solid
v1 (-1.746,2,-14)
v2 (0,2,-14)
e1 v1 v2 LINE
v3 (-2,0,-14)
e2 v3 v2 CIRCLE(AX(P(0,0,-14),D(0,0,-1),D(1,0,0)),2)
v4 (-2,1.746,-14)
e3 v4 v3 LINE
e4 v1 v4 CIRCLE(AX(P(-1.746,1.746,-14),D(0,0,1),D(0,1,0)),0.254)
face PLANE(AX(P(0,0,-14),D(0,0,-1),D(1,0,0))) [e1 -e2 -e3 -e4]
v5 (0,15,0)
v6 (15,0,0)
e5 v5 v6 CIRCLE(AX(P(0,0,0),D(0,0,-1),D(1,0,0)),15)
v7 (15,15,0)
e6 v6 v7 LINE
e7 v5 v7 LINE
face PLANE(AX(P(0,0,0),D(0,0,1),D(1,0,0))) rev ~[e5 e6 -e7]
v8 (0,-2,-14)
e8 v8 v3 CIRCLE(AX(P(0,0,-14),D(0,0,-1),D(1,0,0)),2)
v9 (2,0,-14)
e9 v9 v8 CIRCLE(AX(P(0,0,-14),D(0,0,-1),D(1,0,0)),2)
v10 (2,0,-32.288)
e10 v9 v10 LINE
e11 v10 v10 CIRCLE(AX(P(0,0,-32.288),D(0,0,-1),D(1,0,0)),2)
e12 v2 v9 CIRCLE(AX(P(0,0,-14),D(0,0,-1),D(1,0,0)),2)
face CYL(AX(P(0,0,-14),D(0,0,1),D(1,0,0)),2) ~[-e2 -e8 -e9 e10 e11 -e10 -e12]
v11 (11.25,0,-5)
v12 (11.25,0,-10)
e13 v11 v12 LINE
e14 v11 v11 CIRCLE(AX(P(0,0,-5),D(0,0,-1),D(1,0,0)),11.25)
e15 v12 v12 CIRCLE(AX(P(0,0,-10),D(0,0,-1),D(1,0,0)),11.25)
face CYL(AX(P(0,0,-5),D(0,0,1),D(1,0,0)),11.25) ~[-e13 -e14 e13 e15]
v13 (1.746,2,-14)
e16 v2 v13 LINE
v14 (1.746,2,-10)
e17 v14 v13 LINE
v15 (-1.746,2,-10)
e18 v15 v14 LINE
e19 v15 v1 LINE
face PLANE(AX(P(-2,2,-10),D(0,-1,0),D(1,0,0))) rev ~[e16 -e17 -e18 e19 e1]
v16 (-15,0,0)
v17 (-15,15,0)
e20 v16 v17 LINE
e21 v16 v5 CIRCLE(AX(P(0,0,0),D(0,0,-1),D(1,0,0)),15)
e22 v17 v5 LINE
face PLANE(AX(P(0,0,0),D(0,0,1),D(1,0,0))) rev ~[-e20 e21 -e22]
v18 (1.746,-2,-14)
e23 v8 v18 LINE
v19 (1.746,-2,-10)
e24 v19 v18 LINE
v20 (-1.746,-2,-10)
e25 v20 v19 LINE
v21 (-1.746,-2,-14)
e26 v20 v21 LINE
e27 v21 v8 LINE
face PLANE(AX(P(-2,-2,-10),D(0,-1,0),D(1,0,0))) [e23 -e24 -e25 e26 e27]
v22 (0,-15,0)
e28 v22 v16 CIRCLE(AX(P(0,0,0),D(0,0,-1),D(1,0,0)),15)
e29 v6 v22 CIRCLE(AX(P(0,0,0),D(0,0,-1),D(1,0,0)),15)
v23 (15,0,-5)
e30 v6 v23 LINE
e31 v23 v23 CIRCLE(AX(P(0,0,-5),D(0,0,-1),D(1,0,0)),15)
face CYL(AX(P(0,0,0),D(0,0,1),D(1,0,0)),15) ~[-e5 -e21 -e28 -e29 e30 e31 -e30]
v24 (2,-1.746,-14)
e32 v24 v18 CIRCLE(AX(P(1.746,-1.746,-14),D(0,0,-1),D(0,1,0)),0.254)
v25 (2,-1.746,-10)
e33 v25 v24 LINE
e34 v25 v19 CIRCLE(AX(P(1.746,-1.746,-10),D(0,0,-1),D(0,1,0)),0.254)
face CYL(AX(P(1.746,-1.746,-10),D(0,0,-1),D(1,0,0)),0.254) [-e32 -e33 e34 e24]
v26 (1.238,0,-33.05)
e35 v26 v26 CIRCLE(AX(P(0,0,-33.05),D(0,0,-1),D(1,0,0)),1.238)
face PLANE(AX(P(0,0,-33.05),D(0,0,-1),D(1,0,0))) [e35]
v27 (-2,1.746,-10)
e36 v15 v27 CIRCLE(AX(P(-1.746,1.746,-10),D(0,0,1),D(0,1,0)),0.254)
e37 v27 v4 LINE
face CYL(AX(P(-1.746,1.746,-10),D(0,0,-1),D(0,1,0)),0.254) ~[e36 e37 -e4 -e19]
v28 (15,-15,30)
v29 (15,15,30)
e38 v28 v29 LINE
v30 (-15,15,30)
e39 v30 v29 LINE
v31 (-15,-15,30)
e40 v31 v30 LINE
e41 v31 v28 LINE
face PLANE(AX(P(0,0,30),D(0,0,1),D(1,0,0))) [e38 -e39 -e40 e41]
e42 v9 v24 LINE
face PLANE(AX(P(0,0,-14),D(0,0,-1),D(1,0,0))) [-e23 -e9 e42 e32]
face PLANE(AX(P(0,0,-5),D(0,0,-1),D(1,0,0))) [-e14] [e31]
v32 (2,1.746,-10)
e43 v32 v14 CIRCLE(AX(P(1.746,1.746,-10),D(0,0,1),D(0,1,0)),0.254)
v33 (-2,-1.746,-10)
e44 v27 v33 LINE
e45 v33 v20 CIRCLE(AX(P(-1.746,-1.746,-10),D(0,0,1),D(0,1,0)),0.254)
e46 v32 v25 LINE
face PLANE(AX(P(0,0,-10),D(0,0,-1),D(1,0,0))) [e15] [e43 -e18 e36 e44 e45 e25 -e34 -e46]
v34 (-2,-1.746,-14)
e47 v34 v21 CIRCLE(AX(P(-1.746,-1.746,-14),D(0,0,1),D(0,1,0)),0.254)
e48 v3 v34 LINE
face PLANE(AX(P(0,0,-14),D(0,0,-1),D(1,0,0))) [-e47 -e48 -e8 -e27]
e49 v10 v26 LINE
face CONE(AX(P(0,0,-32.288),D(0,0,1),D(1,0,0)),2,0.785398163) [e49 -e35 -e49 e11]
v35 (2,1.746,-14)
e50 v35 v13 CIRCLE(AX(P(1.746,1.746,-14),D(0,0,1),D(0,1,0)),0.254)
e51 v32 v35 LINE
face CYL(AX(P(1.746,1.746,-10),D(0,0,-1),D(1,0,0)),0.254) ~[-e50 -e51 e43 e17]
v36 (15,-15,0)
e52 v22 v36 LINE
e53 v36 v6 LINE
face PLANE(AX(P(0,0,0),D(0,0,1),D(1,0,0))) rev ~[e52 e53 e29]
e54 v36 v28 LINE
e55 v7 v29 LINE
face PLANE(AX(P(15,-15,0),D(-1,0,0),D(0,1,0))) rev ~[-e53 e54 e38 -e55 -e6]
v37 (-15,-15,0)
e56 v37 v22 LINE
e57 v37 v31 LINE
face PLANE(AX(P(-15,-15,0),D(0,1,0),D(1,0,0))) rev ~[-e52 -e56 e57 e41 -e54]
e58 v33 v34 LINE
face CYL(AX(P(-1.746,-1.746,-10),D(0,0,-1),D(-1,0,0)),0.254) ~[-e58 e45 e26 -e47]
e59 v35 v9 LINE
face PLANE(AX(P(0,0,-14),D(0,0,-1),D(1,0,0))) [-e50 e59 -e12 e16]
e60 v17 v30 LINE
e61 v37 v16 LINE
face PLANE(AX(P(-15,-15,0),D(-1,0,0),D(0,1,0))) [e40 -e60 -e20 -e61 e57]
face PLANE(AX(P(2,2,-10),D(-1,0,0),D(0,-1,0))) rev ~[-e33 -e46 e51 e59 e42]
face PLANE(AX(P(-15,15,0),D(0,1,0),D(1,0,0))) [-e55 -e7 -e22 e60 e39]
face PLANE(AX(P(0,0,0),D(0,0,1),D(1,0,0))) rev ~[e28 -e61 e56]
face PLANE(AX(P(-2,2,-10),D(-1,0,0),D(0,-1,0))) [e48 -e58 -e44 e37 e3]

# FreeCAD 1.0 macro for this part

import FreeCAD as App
import Part
import Sketcher
Q = App.Units.Quantity


def edges_at(feature, points):
    """Names of the edges that pass closest to the given points."""
    edges = feature.Shape.Edges
    near = lambda p: min(range(len(edges)), key=lambda i: edges[i].distToShape(Part.Vertex(*p))[0])
    return sorted({f"Edge{near(p) + 1}" for p in points})

doc = App.newDocument("Part")
params = doc.addObject("Spreadsheet::Sheet", "Params")
for row, (alias, value) in enumerate([
    ("sketch1_width", "30 mm"),
    ("pad1_length", "30 mm"),
    ("sketch2_diameter", "30 mm"),
    ("pad2_length", "5 mm"),
    ("sketch3_diameter", "22.5 mm"),
    ("pad3_length", "5 mm"),
    ("sketch4_width", "4 mm"),
    ("pad4_length", "4 mm"),
    ("sketch5_diameter", "4 mm"),
    ("pad5_length", "19.05 mm"),
    ("chamfer_size", "0.762 mm"),
    ("fillet_radius", "0.254 mm"),
], start=1):
    params.set(f"A{row}", alias)
    params.set(f"B{row}", "=" + value)
    params.setAlias(f"B{row}", alias)

body = doc.addObject("PartDesign::Body", "Body")

# Sketch on XY plane
sketch1 = doc.addObject("Sketcher::SketchObject", "Sketch")
body.addObject(sketch1)
sketch1.AttachmentSupport = (doc.XY_Plane, [""])
sketch1.MapMode = "FlatFace"
sketch1.addGeometry(Part.LineSegment(App.Vector(-15, 15, 0), App.Vector(-15, -15, 0)), False)
sketch1.addGeometry(Part.LineSegment(App.Vector(-15, -15, 0), App.Vector(15, -15, 0)), False)
sketch1.addGeometry(Part.LineSegment(App.Vector(15, -15, 0), App.Vector(15, 15, 0)), False)
sketch1.addGeometry(Part.LineSegment(App.Vector(15, 15, 0), App.Vector(-15, 15, 0)), False)
sketch1.addConstraint(Sketcher.Constraint("Coincident", 0, 2, 1, 1))
sketch1.addConstraint(Sketcher.Constraint("Coincident", 1, 2, 2, 1))
sketch1.addConstraint(Sketcher.Constraint("Coincident", 2, 2, 3, 1))
sketch1.addConstraint(Sketcher.Constraint("Coincident", 3, 2, 0, 1))
sketch1.addConstraint(Sketcher.Constraint("Vertical", 0))
sketch1.addConstraint(Sketcher.Constraint("Horizontal", 1))
sketch1.addConstraint(Sketcher.Constraint("Vertical", 2))
sketch1.addConstraint(Sketcher.Constraint("Horizontal", 3))
sketch1.addConstraint(Sketcher.Constraint("Symmetric", 0, 2, 2, 2, -1, 1))
sketch1.addConstraint(Sketcher.Constraint("Equal", 3, 0))
sketch1.addConstraint(Sketcher.Constraint("DistanceX", 1, 1, 1, 2, Q("30 mm")))
sketch1.setExpression("Constraints[10]", "Params.sketch1_width")
pad1 = doc.addObject("PartDesign::Pad", "Pad")
body.addObject(pad1)
pad1.Profile = sketch1
pad1.setExpression("Length", "Params.pad1_length")

# Sketch on XY plane
sketch2 = doc.addObject("Sketcher::SketchObject", "Sketch001")
body.addObject(sketch2)
sketch2.AttachmentSupport = (doc.XY_Plane, [""])
sketch2.MapMode = "FlatFace"
sketch2.addGeometry(Part.Circle(App.Vector(0, 0, 0), App.Vector(0, 0, 1), 15), False)
sketch2.addConstraint(Sketcher.Constraint("Coincident", 0, 3, -1, 1))
sketch2.addConstraint(Sketcher.Constraint("Diameter", 0, Q("30 mm")))
sketch2.setExpression("Constraints[1]", "Params.sketch2_diameter")
pad2 = doc.addObject("PartDesign::Pad", "Pad001")
body.addObject(pad2)
pad2.Profile = sketch2
pad2.setExpression("Length", "Params.pad2_length")
pad2.Reversed = True

# Sketch on XY plane
sketch3 = doc.addObject("Sketcher::SketchObject", "Sketch002")
body.addObject(sketch3)
sketch3.AttachmentSupport = (doc.XY_Plane, [""])
sketch3.MapMode = "FlatFace"
sketch3.AttachmentOffset = App.Placement(App.Vector(0, 0, -5), App.Rotation())
sketch3.addGeometry(Part.Circle(App.Vector(0, 0, 0), App.Vector(0, 0, 1), 11), False)
sketch3.addConstraint(Sketcher.Constraint("Coincident", 0, 3, -1, 1))
sketch3.addConstraint(Sketcher.Constraint("Diameter", 0, Q("22.5 mm")))
sketch3.setExpression("Constraints[1]", "Params.sketch3_diameter")
pad3 = doc.addObject("PartDesign::Pad", "Pad002")
body.addObject(pad3)
pad3.Profile = sketch3
pad3.setExpression("Length", "Params.pad3_length")
pad3.Reversed = True

# Sketch on XY plane
sketch4 = doc.addObject("Sketcher::SketchObject", "Sketch003")
body.addObject(sketch4)
sketch4.AttachmentSupport = (doc.XY_Plane, [""])
sketch4.MapMode = "FlatFace"
sketch4.AttachmentOffset = App.Placement(App.Vector(0, 0, -10), App.Rotation())
sketch4.addGeometry(Part.LineSegment(App.Vector(-2, -2, 0), App.Vector(-2, 2, 0)), False)
sketch4.addGeometry(Part.LineSegment(App.Vector(-2, 2, 0), App.Vector(2, 2, 0)), False)
sketch4.addGeometry(Part.LineSegment(App.Vector(2, 2, 0), App.Vector(2, -2, 0)), False)
sketch4.addGeometry(Part.LineSegment(App.Vector(2, -2, 0), App.Vector(-2, -2, 0)), False)
sketch4.addConstraint(Sketcher.Constraint("Coincident", 0, 2, 1, 1))
sketch4.addConstraint(Sketcher.Constraint("Coincident", 1, 2, 2, 1))
sketch4.addConstraint(Sketcher.Constraint("Coincident", 2, 2, 3, 1))
sketch4.addConstraint(Sketcher.Constraint("Coincident", 3, 2, 0, 1))
sketch4.addConstraint(Sketcher.Constraint("Vertical", 0))
sketch4.addConstraint(Sketcher.Constraint("Horizontal", 1))
sketch4.addConstraint(Sketcher.Constraint("Vertical", 2))
sketch4.addConstraint(Sketcher.Constraint("Horizontal", 3))
sketch4.addConstraint(Sketcher.Constraint("Symmetric", 0, 2, 2, 2, -1, 1))
sketch4.addConstraint(Sketcher.Constraint("Equal", 3, 0))
sketch4.addConstraint(Sketcher.Constraint("DistanceX", 1, 1, 1, 2, Q("4 mm")))
sketch4.setExpression("Constraints[10]", "Params.sketch4_width")
pad4 = doc.addObject("PartDesign::Pad", "Pad003")
body.addObject(pad4)
pad4.Profile = sketch4
pad4.setExpression("Length", "Params.pad4_length")
pad4.Reversed = True

# Sketch on XY plane
sketch5 = doc.addObject("Sketcher::SketchObject", "Sketch004")
body.addObject(sketch5)
sketch5.AttachmentSupport = (doc.XY_Plane, [""])
sketch5.MapMode = "FlatFace"
sketch5.AttachmentOffset = App.Placement(App.Vector(0, 0, -14), App.Rotation())
sketch5.addGeometry(Part.Circle(App.Vector(0, 0, 0), App.Vector(0, 0, 1), 2), False)
sketch5.addConstraint(Sketcher.Constraint("Coincident", 0, 3, -1, 1))
sketch5.addConstraint(Sketcher.Constraint("Diameter", 0, Q("4 mm")))
sketch5.setExpression("Constraints[1]", "Params.sketch5_diameter")
pad5 = doc.addObject("PartDesign::Pad", "Pad004")
body.addObject(pad5)
pad5.Profile = sketch5
pad5.setExpression("Length", "Params.pad5_length")
pad5.Reversed = True
doc.recompute()

chamfer = doc.addObject("PartDesign::Chamfer", "Chamfer")
body.addObject(chamfer)
chamfer.Base = (pad5, edges_at(pad5, [(-2, 0, -33.05)]))
chamfer.setExpression("Size", "Params.chamfer_size")
doc.recompute()

fillet = doc.addObject("PartDesign::Fillet", "Fillet")
body.addObject(fillet)
fillet.Base = (chamfer, edges_at(chamfer, [
    (-2, 2, -12),
    (-2, -2, -12),
    (2, -2, -12),
    (2, 2, -12),
]))
fillet.setExpression("Radius", "Params.fillet_radius")

doc.recompute()
